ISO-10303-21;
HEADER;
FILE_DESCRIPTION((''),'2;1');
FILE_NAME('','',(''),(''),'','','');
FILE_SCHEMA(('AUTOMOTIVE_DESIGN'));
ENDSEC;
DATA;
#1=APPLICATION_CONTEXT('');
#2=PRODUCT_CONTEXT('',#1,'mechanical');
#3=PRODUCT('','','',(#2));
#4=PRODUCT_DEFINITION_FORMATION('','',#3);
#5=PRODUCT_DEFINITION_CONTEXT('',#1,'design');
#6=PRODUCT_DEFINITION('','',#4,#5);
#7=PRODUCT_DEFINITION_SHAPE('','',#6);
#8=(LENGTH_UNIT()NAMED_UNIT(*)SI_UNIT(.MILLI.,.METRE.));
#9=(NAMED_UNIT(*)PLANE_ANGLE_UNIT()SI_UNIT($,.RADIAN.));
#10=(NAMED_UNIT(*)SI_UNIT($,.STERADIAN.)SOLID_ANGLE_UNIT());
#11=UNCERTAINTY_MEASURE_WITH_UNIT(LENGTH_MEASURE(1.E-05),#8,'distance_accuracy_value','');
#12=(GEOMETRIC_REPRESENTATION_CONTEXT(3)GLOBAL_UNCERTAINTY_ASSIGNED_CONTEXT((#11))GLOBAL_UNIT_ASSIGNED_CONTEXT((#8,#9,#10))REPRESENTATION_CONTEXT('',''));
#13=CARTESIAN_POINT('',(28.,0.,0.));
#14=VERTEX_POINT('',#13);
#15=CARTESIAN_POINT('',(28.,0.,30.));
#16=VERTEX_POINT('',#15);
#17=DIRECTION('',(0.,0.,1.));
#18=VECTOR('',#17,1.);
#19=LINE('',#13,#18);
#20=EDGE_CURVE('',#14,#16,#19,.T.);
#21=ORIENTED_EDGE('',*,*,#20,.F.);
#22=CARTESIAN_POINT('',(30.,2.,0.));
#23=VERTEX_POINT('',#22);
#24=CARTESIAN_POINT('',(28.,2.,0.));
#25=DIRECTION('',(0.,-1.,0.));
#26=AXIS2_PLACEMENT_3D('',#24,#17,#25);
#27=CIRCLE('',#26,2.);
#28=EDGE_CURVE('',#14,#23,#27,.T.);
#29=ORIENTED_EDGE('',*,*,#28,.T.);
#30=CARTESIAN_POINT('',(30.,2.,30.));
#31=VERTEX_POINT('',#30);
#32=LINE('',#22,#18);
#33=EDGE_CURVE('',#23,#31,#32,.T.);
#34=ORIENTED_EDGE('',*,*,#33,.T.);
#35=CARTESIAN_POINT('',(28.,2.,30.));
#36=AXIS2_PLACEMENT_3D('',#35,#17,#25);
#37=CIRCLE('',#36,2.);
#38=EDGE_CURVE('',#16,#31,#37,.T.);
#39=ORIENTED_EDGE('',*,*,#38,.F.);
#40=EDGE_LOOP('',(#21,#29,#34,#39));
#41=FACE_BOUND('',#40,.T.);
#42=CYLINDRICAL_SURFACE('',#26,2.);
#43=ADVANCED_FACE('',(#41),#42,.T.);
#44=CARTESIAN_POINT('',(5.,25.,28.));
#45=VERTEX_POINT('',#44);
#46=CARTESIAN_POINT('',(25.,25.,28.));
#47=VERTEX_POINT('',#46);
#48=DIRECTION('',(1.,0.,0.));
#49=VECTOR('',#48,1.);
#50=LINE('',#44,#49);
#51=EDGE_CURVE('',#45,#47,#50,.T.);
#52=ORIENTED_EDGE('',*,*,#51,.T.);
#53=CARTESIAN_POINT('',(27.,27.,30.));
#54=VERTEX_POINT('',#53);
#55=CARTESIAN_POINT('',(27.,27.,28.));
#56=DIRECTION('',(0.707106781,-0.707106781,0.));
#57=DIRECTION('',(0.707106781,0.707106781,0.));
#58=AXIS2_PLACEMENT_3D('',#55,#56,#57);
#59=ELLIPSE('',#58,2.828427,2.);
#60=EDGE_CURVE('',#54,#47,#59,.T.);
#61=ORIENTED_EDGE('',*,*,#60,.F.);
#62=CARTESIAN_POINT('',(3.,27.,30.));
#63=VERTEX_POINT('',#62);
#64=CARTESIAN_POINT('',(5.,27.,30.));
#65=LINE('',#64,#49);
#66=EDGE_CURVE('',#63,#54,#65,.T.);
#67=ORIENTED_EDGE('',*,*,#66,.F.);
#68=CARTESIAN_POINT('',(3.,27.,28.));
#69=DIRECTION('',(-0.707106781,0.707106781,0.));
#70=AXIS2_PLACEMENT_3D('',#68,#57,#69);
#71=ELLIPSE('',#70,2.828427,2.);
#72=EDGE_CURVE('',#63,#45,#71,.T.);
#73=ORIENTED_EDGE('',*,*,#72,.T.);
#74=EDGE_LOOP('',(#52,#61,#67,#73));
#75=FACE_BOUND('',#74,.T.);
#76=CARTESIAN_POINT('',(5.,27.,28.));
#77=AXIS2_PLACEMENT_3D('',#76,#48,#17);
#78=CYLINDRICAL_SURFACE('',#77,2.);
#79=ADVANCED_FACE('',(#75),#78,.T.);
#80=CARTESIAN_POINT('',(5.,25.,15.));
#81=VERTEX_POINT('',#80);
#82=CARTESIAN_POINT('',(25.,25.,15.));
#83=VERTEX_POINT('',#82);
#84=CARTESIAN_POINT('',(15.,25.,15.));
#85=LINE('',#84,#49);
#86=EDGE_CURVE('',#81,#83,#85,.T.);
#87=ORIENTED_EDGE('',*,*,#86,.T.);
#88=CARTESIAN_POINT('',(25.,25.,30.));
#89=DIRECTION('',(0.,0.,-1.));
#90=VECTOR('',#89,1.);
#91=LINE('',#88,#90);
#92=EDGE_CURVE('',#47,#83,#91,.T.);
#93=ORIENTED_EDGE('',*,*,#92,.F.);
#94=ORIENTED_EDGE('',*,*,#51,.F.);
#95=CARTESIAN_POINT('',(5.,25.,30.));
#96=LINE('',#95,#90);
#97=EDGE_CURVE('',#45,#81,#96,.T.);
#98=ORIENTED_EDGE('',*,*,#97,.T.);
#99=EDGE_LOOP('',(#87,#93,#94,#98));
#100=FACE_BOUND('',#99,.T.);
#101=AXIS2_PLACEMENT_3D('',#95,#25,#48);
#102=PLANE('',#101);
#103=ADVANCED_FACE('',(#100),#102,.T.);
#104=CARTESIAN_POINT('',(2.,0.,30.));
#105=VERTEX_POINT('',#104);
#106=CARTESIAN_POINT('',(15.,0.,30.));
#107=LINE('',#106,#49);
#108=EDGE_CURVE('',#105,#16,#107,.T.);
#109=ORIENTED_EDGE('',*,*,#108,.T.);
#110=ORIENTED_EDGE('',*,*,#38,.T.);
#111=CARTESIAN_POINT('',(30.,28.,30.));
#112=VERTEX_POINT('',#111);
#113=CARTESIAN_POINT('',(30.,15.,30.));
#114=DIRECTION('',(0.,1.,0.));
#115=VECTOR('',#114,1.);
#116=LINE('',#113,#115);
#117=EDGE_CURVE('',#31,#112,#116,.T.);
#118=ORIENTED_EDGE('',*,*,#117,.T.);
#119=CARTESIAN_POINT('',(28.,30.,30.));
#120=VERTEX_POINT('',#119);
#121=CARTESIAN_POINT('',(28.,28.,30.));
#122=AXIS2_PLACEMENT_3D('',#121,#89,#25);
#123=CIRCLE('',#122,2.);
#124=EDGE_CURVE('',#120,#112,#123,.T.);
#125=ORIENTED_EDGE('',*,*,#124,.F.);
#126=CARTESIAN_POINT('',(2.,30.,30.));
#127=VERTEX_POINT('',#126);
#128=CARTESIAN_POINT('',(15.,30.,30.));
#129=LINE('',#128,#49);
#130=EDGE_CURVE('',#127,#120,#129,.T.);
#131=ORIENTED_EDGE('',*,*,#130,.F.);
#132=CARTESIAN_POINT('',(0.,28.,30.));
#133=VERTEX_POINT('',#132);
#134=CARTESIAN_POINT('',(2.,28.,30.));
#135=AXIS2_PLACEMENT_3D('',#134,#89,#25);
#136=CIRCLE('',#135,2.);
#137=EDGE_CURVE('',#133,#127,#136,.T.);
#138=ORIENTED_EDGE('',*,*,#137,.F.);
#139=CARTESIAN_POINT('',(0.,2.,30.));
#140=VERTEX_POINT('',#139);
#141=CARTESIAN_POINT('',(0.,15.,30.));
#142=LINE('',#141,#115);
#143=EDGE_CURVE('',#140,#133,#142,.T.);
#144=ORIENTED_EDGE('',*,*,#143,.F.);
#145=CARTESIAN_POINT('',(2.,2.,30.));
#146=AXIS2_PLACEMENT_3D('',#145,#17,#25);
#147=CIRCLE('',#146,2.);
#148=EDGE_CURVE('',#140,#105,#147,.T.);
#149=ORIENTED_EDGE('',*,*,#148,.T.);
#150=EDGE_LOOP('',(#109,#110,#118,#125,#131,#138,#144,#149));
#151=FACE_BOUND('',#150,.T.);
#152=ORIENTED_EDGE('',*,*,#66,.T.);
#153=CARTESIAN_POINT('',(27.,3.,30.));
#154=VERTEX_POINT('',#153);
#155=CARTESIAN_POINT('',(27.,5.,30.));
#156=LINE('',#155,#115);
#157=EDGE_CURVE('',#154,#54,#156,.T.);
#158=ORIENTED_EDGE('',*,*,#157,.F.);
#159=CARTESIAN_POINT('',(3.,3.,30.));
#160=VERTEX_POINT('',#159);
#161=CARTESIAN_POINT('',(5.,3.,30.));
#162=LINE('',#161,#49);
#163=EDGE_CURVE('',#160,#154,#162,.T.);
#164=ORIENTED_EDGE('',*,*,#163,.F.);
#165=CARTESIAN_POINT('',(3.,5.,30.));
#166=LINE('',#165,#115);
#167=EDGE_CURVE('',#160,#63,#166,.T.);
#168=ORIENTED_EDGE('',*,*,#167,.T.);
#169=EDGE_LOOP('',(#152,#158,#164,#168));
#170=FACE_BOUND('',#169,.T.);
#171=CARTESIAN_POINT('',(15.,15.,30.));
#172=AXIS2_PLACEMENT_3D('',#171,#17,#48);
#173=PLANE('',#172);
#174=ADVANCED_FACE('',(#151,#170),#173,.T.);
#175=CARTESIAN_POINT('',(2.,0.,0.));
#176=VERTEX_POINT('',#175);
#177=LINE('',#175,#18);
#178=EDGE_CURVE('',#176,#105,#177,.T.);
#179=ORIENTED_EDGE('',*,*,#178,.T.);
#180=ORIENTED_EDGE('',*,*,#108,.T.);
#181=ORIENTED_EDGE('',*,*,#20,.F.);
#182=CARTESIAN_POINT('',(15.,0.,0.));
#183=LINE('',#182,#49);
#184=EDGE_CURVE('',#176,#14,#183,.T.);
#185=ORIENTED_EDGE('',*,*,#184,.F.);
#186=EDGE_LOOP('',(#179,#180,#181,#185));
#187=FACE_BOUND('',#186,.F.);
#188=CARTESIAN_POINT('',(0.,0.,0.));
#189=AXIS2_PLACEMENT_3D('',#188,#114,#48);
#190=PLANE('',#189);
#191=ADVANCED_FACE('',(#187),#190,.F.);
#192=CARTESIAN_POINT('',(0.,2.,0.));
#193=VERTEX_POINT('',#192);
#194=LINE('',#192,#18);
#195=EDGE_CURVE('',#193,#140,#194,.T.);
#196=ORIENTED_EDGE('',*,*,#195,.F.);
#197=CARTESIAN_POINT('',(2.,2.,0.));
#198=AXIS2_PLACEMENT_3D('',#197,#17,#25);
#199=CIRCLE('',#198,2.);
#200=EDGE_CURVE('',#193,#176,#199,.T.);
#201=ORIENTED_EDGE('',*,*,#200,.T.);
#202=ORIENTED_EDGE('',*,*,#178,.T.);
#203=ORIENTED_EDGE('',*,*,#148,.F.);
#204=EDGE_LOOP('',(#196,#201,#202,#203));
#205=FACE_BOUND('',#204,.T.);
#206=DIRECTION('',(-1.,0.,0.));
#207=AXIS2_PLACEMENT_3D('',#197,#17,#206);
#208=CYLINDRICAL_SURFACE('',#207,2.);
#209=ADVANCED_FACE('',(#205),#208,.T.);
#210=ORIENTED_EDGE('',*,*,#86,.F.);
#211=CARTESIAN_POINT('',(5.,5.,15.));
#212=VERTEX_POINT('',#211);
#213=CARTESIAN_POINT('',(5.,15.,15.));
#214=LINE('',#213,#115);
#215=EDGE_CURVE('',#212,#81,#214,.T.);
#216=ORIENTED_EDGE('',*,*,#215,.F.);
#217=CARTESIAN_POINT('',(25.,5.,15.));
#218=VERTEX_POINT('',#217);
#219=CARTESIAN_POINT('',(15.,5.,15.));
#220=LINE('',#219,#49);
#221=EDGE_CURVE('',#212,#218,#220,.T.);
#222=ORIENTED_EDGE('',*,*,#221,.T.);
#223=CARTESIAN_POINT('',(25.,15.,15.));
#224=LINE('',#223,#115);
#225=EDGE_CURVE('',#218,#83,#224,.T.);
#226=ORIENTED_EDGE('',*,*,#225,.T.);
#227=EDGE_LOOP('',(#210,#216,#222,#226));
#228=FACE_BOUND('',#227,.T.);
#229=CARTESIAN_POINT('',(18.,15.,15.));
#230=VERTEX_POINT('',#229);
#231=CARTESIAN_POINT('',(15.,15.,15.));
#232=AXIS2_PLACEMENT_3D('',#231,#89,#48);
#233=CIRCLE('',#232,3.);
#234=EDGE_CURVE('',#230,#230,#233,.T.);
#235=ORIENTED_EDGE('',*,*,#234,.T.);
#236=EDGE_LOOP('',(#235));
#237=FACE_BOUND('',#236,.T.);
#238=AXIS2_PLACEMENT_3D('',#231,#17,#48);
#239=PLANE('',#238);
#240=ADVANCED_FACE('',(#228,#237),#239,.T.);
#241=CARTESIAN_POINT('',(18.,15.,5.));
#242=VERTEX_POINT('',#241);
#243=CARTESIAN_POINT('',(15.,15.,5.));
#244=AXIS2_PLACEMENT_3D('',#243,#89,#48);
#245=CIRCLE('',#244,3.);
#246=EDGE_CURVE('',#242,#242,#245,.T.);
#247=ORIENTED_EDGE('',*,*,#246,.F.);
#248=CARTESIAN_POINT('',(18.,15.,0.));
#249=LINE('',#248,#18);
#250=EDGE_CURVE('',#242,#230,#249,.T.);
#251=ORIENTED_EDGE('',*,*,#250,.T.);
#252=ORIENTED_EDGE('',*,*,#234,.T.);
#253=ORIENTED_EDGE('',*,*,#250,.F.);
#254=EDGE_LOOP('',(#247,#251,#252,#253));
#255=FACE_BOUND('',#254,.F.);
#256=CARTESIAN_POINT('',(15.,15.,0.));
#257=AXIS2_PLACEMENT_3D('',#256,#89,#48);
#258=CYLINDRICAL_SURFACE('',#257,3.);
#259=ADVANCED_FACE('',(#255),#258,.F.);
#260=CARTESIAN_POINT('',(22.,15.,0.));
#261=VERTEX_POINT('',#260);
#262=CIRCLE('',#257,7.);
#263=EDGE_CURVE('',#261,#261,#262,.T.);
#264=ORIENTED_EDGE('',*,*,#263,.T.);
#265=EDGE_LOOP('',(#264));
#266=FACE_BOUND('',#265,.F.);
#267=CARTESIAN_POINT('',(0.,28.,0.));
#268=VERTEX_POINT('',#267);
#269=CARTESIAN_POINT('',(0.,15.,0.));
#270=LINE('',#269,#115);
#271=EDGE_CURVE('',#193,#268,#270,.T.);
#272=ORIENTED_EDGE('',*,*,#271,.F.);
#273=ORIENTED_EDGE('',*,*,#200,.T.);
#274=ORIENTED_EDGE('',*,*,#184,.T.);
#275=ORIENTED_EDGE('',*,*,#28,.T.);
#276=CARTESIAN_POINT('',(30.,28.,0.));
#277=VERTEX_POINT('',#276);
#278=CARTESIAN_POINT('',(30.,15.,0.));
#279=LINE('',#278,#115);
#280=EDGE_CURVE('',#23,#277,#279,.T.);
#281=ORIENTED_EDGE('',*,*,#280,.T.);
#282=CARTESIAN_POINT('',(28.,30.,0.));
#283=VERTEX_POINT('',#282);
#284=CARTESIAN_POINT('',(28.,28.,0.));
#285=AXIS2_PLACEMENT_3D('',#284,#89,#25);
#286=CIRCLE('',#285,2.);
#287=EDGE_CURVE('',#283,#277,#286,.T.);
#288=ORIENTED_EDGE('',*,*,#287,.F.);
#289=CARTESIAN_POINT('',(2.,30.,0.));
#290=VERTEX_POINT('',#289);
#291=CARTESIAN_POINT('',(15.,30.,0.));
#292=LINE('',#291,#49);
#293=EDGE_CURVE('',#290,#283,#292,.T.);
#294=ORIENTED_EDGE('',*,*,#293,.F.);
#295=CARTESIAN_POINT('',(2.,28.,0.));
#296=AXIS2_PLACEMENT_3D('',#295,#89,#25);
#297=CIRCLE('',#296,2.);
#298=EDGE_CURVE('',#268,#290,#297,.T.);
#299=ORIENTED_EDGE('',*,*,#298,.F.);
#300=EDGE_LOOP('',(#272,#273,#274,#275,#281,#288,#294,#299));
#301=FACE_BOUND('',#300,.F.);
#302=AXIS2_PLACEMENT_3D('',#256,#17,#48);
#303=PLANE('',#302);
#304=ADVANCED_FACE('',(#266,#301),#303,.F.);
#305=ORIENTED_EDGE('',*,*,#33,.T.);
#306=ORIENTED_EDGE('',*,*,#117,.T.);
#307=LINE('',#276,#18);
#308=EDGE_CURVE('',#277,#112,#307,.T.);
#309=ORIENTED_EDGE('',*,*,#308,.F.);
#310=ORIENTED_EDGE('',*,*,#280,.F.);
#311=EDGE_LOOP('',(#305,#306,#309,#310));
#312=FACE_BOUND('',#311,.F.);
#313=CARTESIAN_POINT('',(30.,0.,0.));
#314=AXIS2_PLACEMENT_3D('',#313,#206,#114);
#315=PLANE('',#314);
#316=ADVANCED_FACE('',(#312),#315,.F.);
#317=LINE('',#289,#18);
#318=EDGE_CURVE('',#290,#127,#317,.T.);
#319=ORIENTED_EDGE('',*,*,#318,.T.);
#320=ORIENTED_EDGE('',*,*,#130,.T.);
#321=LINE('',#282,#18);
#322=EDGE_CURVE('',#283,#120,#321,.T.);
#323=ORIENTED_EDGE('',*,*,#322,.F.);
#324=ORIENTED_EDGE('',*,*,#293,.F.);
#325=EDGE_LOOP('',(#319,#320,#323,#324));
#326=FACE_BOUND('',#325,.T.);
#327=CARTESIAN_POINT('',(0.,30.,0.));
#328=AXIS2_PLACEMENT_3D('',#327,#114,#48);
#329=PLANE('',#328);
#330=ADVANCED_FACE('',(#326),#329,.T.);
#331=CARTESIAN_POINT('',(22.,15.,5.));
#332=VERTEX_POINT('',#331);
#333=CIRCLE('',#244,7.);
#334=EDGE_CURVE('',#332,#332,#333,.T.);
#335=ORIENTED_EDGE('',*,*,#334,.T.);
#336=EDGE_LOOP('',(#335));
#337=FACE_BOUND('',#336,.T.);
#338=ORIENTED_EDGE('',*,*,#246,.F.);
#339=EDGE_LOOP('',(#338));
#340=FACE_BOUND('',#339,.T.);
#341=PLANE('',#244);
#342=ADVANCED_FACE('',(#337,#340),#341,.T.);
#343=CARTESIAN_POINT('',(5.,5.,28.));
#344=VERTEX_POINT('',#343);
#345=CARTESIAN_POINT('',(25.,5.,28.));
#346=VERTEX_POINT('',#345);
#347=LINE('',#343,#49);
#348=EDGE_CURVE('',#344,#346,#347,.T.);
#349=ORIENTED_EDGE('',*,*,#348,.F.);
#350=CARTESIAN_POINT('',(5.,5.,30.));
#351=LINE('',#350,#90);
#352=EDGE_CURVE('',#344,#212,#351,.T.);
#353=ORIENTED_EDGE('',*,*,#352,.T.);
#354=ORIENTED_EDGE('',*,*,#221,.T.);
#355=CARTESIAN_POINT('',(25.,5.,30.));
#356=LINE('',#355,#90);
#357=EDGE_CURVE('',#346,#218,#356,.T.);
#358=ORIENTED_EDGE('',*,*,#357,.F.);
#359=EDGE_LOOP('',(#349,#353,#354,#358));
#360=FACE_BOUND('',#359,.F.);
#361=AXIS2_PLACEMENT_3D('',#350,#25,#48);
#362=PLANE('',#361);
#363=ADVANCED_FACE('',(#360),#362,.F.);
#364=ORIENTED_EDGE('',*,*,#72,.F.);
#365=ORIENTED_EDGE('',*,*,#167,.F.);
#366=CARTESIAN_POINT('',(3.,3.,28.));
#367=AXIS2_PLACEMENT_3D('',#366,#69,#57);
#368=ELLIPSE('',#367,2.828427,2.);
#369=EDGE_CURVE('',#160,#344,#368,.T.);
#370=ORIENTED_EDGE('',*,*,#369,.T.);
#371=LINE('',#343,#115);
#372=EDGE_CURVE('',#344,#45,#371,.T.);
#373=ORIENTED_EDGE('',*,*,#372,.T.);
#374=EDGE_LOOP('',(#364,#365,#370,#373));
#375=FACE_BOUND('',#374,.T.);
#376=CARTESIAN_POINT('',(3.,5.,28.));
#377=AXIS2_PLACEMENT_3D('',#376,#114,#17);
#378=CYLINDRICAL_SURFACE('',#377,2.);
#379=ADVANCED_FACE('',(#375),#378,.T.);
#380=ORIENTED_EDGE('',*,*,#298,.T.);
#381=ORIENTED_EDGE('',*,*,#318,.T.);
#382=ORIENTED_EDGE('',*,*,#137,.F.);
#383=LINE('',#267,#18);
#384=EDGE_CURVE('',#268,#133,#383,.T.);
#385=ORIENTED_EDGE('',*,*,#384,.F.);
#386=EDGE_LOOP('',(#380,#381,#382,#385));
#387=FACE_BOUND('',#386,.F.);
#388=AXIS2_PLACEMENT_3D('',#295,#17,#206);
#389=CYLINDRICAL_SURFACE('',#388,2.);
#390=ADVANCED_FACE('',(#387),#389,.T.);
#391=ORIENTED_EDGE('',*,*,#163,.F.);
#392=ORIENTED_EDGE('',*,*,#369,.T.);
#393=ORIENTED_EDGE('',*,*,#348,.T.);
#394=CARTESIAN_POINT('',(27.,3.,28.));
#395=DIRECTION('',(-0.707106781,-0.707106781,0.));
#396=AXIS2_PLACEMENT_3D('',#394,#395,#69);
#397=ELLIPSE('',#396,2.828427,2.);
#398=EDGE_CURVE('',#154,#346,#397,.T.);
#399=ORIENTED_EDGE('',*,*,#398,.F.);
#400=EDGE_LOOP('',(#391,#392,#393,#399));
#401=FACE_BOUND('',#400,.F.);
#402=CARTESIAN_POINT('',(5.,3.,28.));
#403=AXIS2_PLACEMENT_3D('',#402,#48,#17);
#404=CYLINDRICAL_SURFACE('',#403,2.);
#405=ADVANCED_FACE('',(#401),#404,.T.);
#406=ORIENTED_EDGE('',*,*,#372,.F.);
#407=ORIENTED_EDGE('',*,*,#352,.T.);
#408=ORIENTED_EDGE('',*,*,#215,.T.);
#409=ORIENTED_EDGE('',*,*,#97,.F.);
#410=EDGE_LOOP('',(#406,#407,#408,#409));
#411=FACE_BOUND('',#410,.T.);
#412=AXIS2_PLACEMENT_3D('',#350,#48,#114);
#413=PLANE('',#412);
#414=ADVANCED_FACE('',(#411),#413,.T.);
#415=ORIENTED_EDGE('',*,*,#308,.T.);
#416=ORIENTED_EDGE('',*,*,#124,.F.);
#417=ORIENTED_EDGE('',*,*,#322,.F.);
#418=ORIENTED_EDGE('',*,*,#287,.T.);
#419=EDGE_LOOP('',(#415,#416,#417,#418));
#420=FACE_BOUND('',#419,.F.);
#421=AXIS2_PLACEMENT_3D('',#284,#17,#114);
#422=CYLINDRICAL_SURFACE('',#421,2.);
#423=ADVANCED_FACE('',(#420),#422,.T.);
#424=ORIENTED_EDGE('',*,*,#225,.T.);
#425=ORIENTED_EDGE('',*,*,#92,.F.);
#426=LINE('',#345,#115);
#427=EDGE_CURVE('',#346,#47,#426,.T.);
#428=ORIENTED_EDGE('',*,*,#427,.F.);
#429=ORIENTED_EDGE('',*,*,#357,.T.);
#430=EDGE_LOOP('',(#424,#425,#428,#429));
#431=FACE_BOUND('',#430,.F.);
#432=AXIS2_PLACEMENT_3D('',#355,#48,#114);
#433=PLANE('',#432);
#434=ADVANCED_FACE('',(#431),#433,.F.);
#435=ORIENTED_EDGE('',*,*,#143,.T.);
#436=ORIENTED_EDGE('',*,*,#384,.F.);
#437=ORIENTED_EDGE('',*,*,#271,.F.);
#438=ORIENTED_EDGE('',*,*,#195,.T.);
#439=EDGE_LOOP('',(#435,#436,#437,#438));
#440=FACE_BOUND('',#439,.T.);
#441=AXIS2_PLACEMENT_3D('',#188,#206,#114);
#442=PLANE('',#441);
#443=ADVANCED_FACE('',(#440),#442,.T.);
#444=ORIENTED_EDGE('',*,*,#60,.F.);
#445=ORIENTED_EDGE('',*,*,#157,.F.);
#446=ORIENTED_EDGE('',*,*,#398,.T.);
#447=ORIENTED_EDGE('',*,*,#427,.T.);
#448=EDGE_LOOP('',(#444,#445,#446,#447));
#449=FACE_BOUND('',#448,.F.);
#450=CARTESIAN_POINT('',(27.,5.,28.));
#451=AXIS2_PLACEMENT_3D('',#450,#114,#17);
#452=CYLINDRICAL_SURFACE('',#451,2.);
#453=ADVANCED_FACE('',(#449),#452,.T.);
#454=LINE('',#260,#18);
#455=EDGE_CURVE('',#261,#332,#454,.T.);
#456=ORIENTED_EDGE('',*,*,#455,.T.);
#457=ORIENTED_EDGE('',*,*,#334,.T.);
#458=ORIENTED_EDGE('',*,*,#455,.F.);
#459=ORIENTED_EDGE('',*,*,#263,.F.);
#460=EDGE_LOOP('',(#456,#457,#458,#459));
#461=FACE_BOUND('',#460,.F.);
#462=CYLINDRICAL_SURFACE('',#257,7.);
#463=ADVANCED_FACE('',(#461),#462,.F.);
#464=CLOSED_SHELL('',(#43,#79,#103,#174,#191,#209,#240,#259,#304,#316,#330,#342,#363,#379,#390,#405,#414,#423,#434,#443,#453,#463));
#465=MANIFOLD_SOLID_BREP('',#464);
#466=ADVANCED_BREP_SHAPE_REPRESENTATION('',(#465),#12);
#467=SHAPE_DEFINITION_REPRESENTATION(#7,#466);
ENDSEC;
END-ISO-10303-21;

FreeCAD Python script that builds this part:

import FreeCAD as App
import Part
import Sketcher


def edges_at(feature, points):
    """Names of the edges that pass closest to the given points."""
    edges = feature.Shape.Edges
    near = lambda p: min(range(len(edges)), key=lambda i: edges[i].distToShape(Part.Vertex(*p))[0])
    return sorted({f"Edge{near(p) + 1}" for p in points})


def add_polygon(sketch, points):
    """Adds a closed chain of lines whose ends are joined by coincident constraints."""
    first, n = sketch.GeometryCount, len(points)
    for a, b in zip(points, points[1:] + points[:1]):
        sketch.addGeometry(Part.LineSegment(App.Vector(*a, 0), App.Vector(*b, 0)), False)
    for i in range(n):
        sketch.addConstraint(Sketcher.Constraint("Coincident", first + i, 2, first + (i + 1) % n, 1))

doc = App.newDocument("Part")
body = doc.addObject("PartDesign::Body", "Body")

# Sketch on XY plane
sketch1 = body.newObject("Sketcher::SketchObject", "Sketch")
sketch1.AttachmentSupport = (doc.getObject("XY_Plane"), [""])
sketch1.MapMode = "FlatFace"
add_polygon(sketch1, [(0, 30), (0, 0), (30, 0), (30, 30)])  # lines 0-3
sketch1.addConstraint([
    Sketcher.Constraint("Vertical", 0),
    Sketcher.Constraint("Horizontal", 1),
    Sketcher.Constraint("Vertical", 2),
    Sketcher.Constraint("Horizontal", 3),
    Sketcher.Constraint("Coincident", 0, 2, -1, 1),
    Sketcher.Constraint("Equal", 3, 0),
    Sketcher.Constraint("DistanceX", 1, 1, 1, 2, 30.0),
])
pad1 = body.newObject("PartDesign::Pad", "Pad")
pad1.Profile = sketch1
pad1.Length = 30

# Sketch on XY plane
sketch2 = body.newObject("Sketcher::SketchObject", "Sketch001")
sketch2.AttachmentSupport = (doc.getObject("XY_Plane"), [""])
sketch2.MapMode = "FlatFace"
sketch2.AttachmentOffset = App.Placement(App.Vector(0, 0, 30), App.Rotation())
add_polygon(sketch2, [(5, 25), (5, 5), (25, 5), (25, 25)])  # lines 0-3
sketch2.addConstraint([
    Sketcher.Constraint("Vertical", 0),
    Sketcher.Constraint("Horizontal", 1),
    Sketcher.Constraint("Vertical", 2),
    Sketcher.Constraint("Horizontal", 3),
    Sketcher.Constraint("Equal", 3, 0),
    Sketcher.Constraint("DistanceX", 1, 1, 1, 2, 20.0),
    Sketcher.Constraint("DistanceX", -1, 1, 0, 2, 5.0),
    Sketcher.Constraint("DistanceY", -1, 1, 0, 2, 5.0),
])
pocket1 = body.newObject("PartDesign::Pocket", "Pocket")
pocket1.Profile = sketch2
pocket1.Length = 15

# Sketch on XY plane
sketch3 = body.newObject("Sketcher::SketchObject", "Sketch002")
sketch3.AttachmentSupport = (doc.getObject("XY_Plane"), [""])
sketch3.MapMode = "FlatFace"
sketch3.addGeometry(Part.Circle(App.Vector(15, 15, 0), App.Vector(0, 0, 1), 3), False)
sketch3.addConstraint([
    Sketcher.Constraint("Diameter", 0, 6.0),
    Sketcher.Constraint("DistanceX", -1, 1, 0, 3, 15.0),
    Sketcher.Constraint("DistanceY", -1, 1, 0, 3, 15.0),
])
pocket2 = body.newObject("PartDesign::Pocket", "Pocket001")
pocket2.Profile = sketch3
pocket2.Length = 25
pocket2.Reversed = True

# Sketch on XY plane
sketch4 = body.newObject("Sketcher::SketchObject", "Sketch003")
sketch4.AttachmentSupport = (doc.getObject("XY_Plane"), [""])
sketch4.MapMode = "FlatFace"
sketch4.addGeometry(Part.Circle(App.Vector(15, 15, 0), App.Vector(0, 0, 1), 7), False)
sketch4.addConstraint([
    Sketcher.Constraint("Diameter", 0, 14.0),
    Sketcher.Constraint("DistanceX", -1, 1, 0, 3, 15.0),
    Sketcher.Constraint("DistanceY", -1, 1, 0, 3, 15.0),
])
pocket3 = body.newObject("PartDesign::Pocket", "Pocket002")
pocket3.Profile = sketch4
pocket3.Length = 5
pocket3.Reversed = True
doc.recompute()

fillet = body.newObject("PartDesign::Fillet", "Fillet")
fillet.Base = (pocket3, edges_at(pocket3, [
    (5, 15, 30),
    (15, 25, 30),
    (25, 15, 30),
    (15, 5, 30),
    (30, 0, 15),
    (30, 30, 15),
    (0, 0, 15),
    (0, 30, 15),
]))
fillet.Radius = 2

doc.recompute()
